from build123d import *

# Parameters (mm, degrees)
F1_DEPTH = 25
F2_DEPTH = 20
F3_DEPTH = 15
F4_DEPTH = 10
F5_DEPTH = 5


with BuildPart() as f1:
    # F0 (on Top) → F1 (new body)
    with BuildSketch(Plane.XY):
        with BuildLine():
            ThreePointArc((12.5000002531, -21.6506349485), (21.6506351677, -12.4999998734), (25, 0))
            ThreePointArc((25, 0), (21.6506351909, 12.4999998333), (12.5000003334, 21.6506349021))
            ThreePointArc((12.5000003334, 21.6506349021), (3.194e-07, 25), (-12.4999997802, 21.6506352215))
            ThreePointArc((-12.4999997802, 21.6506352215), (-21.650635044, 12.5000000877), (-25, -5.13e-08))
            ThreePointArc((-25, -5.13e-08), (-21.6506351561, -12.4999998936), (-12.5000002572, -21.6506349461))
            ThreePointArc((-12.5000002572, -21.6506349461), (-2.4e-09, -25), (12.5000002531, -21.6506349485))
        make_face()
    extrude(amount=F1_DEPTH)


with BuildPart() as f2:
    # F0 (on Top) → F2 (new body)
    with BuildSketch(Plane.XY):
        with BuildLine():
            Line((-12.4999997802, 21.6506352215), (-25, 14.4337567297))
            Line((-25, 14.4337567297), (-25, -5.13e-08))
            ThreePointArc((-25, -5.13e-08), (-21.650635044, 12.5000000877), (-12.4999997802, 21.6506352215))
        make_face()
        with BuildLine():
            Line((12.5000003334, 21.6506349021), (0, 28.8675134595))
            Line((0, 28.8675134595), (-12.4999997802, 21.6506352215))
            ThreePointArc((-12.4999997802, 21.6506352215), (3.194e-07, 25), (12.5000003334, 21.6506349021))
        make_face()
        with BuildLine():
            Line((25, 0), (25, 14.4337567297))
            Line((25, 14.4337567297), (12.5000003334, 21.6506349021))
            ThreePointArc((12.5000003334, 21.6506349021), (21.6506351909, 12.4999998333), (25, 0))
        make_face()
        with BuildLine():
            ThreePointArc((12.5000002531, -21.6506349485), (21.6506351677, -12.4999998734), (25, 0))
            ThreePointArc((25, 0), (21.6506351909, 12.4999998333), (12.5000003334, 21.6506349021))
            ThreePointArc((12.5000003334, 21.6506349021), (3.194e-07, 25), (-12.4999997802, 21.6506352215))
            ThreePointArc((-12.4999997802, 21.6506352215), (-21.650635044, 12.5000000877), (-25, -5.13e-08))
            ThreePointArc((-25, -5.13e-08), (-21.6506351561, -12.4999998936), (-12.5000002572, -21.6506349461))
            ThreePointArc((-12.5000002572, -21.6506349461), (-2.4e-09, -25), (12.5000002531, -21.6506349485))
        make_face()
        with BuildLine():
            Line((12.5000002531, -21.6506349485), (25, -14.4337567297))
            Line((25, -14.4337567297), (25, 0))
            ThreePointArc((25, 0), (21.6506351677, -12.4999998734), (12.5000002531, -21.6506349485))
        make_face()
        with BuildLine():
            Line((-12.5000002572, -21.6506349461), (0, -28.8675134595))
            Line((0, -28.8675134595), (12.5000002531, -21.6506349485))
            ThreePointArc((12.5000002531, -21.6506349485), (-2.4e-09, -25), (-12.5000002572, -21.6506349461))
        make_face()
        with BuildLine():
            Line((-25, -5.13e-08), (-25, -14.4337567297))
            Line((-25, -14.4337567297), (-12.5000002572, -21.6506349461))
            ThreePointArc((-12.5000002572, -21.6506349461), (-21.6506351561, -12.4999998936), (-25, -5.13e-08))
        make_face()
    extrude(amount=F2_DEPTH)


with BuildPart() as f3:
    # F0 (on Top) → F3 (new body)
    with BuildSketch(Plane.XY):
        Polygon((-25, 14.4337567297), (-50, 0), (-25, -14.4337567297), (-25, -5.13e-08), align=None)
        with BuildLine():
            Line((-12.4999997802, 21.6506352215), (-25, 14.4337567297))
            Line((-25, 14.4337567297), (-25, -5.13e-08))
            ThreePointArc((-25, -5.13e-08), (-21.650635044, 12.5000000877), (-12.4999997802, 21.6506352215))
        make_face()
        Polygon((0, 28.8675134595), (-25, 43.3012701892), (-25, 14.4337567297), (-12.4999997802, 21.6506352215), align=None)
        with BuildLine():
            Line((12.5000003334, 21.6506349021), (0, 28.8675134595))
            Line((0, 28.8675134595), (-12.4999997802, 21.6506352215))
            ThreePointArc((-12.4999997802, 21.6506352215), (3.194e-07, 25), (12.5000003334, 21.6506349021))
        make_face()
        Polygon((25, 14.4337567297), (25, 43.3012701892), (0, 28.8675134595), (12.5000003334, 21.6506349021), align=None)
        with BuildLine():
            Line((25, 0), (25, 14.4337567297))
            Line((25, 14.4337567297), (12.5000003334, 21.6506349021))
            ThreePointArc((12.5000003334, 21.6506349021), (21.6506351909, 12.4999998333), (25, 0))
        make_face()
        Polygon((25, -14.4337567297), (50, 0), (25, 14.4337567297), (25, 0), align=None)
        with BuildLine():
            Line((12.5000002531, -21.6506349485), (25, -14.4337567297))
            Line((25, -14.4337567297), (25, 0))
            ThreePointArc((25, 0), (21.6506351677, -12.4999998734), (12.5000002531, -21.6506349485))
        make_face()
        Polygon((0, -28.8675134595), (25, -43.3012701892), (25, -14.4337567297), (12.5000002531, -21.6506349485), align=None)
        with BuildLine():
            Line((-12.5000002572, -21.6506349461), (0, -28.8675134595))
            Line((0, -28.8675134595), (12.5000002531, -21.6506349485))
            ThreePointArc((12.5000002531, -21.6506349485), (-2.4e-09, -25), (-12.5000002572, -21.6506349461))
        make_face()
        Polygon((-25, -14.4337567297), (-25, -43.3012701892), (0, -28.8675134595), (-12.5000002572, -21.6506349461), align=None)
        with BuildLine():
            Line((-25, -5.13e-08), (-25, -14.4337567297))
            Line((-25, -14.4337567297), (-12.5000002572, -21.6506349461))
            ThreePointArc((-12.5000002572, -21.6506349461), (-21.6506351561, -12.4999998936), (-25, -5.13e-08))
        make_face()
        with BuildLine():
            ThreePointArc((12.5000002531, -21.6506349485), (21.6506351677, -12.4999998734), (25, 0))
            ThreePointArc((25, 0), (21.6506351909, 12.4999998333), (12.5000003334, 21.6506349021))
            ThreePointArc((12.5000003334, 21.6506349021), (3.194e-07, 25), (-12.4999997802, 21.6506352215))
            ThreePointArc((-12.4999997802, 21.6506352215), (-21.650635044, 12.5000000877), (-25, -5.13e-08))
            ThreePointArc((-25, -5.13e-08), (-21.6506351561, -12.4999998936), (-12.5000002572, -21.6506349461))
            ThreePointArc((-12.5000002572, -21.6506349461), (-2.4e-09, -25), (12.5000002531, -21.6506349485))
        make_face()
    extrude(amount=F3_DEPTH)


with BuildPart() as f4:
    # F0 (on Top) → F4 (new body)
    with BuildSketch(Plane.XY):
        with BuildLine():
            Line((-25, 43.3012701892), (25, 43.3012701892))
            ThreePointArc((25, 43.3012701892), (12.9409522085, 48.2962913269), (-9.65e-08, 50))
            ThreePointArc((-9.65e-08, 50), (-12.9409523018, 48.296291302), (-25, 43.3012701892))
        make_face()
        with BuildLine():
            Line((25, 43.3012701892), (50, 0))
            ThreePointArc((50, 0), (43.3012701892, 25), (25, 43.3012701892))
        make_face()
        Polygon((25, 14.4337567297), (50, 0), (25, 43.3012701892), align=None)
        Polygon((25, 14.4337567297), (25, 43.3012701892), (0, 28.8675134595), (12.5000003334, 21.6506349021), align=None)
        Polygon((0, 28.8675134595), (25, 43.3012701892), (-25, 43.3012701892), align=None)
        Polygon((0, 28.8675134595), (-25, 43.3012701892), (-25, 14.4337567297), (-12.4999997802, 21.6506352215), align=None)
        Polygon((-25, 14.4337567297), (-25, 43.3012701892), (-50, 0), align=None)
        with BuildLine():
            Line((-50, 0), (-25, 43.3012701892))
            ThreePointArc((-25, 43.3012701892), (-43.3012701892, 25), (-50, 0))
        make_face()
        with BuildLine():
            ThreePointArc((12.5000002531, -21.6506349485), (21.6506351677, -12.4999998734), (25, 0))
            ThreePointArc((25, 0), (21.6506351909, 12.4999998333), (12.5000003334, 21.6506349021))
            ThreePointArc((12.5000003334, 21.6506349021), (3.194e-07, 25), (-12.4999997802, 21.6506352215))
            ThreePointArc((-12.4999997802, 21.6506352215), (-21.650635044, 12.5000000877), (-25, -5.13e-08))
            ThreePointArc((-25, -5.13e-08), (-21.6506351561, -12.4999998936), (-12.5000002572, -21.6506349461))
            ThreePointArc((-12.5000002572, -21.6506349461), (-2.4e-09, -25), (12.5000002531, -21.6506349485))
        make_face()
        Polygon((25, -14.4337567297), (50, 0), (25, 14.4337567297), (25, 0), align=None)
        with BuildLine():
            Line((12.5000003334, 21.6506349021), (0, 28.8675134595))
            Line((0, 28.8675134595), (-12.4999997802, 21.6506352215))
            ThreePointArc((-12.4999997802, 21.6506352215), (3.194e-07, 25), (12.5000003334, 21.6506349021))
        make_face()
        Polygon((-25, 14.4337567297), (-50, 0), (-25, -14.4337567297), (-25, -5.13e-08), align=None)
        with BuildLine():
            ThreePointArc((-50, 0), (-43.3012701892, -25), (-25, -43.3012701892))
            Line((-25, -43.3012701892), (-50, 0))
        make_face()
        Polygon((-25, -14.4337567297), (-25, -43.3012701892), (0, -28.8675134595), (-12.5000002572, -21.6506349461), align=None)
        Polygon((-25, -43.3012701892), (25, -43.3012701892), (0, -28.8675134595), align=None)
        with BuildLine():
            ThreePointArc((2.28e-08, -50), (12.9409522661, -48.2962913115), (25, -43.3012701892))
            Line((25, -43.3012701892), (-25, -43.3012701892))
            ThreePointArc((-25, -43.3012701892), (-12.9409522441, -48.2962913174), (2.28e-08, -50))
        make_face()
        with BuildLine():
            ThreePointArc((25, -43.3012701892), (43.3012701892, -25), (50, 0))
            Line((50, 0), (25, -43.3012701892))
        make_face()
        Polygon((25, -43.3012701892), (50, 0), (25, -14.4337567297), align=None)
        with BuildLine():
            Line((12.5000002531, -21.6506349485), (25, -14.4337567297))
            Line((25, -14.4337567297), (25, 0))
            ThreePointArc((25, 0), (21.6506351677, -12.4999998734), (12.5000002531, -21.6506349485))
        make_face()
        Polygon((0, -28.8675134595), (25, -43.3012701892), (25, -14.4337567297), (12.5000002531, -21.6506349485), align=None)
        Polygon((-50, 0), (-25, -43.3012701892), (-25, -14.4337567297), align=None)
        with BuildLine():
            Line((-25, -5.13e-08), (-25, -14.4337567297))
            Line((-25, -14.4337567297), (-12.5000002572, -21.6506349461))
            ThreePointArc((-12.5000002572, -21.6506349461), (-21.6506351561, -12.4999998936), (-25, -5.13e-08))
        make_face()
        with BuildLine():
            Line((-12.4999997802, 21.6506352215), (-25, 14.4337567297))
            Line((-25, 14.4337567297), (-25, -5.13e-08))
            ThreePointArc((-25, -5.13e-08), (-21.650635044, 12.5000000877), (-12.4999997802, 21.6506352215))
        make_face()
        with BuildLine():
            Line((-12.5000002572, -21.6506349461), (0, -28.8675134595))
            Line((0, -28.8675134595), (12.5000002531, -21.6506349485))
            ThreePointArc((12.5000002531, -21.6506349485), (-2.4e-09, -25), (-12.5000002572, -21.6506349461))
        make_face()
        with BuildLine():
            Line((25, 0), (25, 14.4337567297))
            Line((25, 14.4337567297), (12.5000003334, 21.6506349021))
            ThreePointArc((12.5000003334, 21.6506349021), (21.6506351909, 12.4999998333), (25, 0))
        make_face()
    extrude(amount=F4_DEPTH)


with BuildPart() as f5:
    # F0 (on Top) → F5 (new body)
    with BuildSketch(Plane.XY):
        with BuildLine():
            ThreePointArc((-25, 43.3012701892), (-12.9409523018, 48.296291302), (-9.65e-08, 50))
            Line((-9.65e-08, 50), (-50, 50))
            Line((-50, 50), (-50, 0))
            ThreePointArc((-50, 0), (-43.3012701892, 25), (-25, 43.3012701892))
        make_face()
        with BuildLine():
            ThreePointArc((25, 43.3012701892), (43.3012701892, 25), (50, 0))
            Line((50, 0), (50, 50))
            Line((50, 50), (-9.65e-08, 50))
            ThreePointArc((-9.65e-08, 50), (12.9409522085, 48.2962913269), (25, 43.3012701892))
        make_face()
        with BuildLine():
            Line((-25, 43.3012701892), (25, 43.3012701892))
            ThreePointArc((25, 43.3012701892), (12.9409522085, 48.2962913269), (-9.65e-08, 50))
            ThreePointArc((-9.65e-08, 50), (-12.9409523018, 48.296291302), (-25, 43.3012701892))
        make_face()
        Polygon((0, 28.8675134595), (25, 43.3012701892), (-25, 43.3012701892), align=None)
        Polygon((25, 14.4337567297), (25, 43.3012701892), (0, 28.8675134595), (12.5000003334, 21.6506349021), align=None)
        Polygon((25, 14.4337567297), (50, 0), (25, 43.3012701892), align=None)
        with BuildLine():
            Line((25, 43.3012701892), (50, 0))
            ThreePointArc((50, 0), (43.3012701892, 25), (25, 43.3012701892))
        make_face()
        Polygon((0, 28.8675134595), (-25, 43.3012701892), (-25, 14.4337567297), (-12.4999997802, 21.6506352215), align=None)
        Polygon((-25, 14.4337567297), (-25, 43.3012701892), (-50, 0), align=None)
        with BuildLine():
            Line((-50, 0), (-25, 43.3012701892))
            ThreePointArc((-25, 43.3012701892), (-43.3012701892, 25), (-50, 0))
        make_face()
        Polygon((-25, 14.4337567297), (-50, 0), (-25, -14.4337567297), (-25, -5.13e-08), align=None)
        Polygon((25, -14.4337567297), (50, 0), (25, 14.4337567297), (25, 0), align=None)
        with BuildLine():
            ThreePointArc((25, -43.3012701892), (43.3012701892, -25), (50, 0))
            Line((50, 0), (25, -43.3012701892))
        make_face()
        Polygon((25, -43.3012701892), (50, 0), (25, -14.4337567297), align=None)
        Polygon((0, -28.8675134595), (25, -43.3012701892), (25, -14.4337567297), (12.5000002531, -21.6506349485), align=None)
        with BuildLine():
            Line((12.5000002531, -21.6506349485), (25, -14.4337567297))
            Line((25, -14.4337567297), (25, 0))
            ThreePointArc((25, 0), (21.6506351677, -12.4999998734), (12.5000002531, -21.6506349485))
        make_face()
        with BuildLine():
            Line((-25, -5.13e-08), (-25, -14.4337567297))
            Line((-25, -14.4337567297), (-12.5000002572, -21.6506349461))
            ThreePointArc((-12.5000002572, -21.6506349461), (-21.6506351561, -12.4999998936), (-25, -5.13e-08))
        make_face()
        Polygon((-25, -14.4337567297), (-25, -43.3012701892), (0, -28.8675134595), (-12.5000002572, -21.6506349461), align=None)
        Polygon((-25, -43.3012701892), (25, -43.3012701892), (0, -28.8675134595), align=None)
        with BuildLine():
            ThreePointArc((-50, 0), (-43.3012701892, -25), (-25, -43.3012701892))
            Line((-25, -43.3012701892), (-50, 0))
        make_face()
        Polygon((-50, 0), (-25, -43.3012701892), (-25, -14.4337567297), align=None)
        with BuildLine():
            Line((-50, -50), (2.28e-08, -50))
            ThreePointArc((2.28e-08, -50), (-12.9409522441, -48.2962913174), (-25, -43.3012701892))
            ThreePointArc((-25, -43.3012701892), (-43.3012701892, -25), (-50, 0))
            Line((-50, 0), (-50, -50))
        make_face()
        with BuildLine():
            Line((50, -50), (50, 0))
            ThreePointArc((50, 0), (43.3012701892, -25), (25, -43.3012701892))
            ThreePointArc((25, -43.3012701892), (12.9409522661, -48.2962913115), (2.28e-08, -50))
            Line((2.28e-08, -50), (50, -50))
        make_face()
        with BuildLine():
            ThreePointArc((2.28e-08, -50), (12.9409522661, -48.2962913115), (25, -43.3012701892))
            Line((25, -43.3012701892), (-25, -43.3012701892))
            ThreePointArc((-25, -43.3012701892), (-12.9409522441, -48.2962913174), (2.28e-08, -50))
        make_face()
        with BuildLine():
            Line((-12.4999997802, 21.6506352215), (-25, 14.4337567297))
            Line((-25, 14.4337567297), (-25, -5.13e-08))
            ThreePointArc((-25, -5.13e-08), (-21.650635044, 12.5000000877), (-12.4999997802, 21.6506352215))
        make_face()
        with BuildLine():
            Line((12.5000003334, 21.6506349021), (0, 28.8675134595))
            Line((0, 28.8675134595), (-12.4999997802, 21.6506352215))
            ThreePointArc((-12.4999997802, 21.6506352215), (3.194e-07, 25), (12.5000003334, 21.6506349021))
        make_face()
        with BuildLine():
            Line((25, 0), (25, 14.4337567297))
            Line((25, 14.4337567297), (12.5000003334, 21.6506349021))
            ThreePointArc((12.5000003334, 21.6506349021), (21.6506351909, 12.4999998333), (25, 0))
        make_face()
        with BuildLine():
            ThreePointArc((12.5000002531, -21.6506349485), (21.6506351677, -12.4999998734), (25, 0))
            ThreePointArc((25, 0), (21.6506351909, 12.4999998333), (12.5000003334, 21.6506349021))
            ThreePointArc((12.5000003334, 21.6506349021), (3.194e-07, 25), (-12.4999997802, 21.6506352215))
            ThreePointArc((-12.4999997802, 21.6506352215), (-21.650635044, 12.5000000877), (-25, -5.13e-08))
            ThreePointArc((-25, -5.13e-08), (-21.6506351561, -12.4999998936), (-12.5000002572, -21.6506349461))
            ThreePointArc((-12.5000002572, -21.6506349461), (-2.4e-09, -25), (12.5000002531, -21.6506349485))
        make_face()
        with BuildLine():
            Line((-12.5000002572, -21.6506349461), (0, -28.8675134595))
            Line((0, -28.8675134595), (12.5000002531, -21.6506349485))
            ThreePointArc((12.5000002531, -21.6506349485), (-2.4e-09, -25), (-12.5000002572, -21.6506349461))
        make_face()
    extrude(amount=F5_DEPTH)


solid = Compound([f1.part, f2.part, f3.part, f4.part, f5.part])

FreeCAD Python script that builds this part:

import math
import FreeCAD as App
import Part
import Sketcher
Q = App.Units.Quantity

doc = App.newDocument("Part")
body = doc.addObject("PartDesign::Body", "Body")

# Sketch on XY plane
sketch1 = doc.addObject("Sketcher::SketchObject", "Sketch")
body.addObject(sketch1)
sketch1.AttachmentSupport = (doc.XY_Plane, [""])
sketch1.MapMode = "FlatFace"
sketch1.addGeometry([
    Part.ArcOfCircle(Part.Circle(App.Vector(0, 0, 0), App.Vector(0, 0, 1), 25), math.radians(-60), math.radians(0)),  # 0
    Part.ArcOfCircle(Part.Circle(App.Vector(0, 0, 0), App.Vector(0, 0, 1), 25), math.radians(0), math.radians(60)),  # 1
    Part.ArcOfCircle(Part.Circle(App.Vector(0, 0, 0), App.Vector(0, 0, 1), 25), math.radians(60), math.radians(120)),  # 2
    Part.ArcOfCircle(Part.Circle(App.Vector(0, 0, 0), App.Vector(0, 0, 1), 25), math.radians(120), math.radians(180)),  # 3
    Part.ArcOfCircle(Part.Circle(App.Vector(0, 0, 0), App.Vector(0, 0, 1), 25), math.radians(-180), math.radians(-120)),  # 4
    Part.ArcOfCircle(Part.Circle(App.Vector(0, 0, 0), App.Vector(0, 0, 1), 25), math.radians(-120), math.radians(-60)),  # 5
], False)
sketch1.addConstraint([
    Sketcher.Constraint("Tangent", 0, 2, 1, 1),
    Sketcher.Constraint("Tangent", 1, 2, 2, 1),
    Sketcher.Constraint("Tangent", 2, 2, 3, 1),
    Sketcher.Constraint("Tangent", 3, 2, 4, 1),
    Sketcher.Constraint("Tangent", 4, 2, 5, 1),
    Sketcher.Constraint("Tangent", 5, 2, 0, 1),
    Sketcher.Constraint("Coincident", 0, 3, -1, 1),
    Sketcher.Constraint("Coincident", 2, 3, -1, 1),
    Sketcher.Constraint("Equal", 2, 3),
    Sketcher.Constraint("PointOnObject", 0, 2, -1),
    Sketcher.Constraint("PointOnObject", 3, 2, -1),
    Sketcher.Constraint("Horizontal", 1, 2, 2, 2),
    Sketcher.Constraint("Horizontal", 4, 2, 5, 2),
    Sketcher.Constraint("Vertical", 2, 2, 4, 2),
    Sketcher.Constraint("Radius", 0, 25.0),
    Sketcher.Constraint("DistanceX", -1, 1, 1, 2, 12.5),
])
pad1 = doc.addObject("PartDesign::Pad", "Pad")
body.addObject(pad1)
pad1.Profile = sketch1
pad1.Length = 25
body2 = doc.addObject("PartDesign::Body", "Body001")

# Sketch on XY plane
sketch2 = doc.addObject("Sketcher::SketchObject", "Sketch001")
body2.addObject(sketch2)
sketch2.AttachmentSupport = (doc.getObject("XY_Plane001"), [""])
sketch2.MapMode = "FlatFace"
sketch2.addGeometry([
    Part.LineSegment(App.Vector(0, 29, 0), App.Vector(-25, 14, 0)),  # 0
    Part.LineSegment(App.Vector(-25, 14, 0), App.Vector(-25, -14, 0)),  # 1
    Part.LineSegment(App.Vector(-25, -14, 0), App.Vector(0, -29, 0)),  # 2
    Part.LineSegment(App.Vector(0, -29, 0), App.Vector(13, -22, 0)),  # 3
    Part.LineSegment(App.Vector(13, -22, 0), App.Vector(25, -14, 0)),  # 4
    Part.LineSegment(App.Vector(25, -14, 0), App.Vector(25, 14, 0)),  # 5
    Part.LineSegment(App.Vector(25, 14, 0), App.Vector(13, 22, 0)),  # 6
    Part.LineSegment(App.Vector(13, 22, 0), App.Vector(0, 29, 0)),  # 7
], False)
sketch2.addConstraint([
    Sketcher.Constraint("Coincident", 0, 2, 1, 1),
    Sketcher.Constraint("Coincident", 1, 2, 2, 1),
    Sketcher.Constraint("Coincident", 2, 2, 3, 1),
    Sketcher.Constraint("Coincident", 3, 2, 4, 1),
    Sketcher.Constraint("Coincident", 4, 2, 5, 1),
    Sketcher.Constraint("Coincident", 5, 2, 6, 1),
    Sketcher.Constraint("Coincident", 6, 2, 7, 1),
    Sketcher.Constraint("Coincident", 7, 2, 0, 1),
    Sketcher.Constraint("Vertical", 1),
    Sketcher.Constraint("Vertical", 5),
    Sketcher.Constraint("Symmetric", 0, 2, 4, 2, -1, 1),
    Sketcher.Constraint("Symmetric", 2, 2, 7, 2, -1, 1),
    Sketcher.Constraint("Symmetric", 3, 2, 6, 2, -1),
    Sketcher.Constraint("PointOnObject", 2, 2, -2),
    Sketcher.Constraint("Parallel", 0, 3),
    Sketcher.Constraint("Parallel", 2, 6),
    Sketcher.Constraint("Parallel", 6, 7),
    Sketcher.Constraint("Equal", 3, 4),
    Sketcher.Constraint("Angle", 0, Q("-150 deg")),
    Sketcher.Constraint("DistanceX", 0, 2, -1, 1, 25.0),
    Sketcher.Constraint("DistanceY", 1, 2, 1, 1, 28.867513),
])
pad2 = doc.addObject("PartDesign::Pad", "Pad001")
body2.addObject(pad2)
pad2.Profile = sketch2
pad2.Length = 20
body3 = doc.addObject("PartDesign::Body", "Body002")

# Sketch on XY plane
sketch3 = doc.addObject("Sketcher::SketchObject", "Sketch002")
body3.addObject(sketch3)
sketch3.AttachmentSupport = (doc.getObject("XY_Plane002"), [""])
sketch3.MapMode = "FlatFace"
sketch3.addGeometry([
    Part.LineSegment(App.Vector(-50, 0, 0), App.Vector(-25, -14, 0)),  # 0
    Part.LineSegment(App.Vector(-25, -14, 0), App.Vector(-25, -43, 0)),  # 1
    Part.LineSegment(App.Vector(-25, -43, 0), App.Vector(0, -29, 0)),  # 2
    Part.LineSegment(App.Vector(0, -29, 0), App.Vector(25, -43, 0)),  # 3
    Part.LineSegment(App.Vector(25, -43, 0), App.Vector(25, -14, 0)),  # 4
    Part.LineSegment(App.Vector(25, -14, 0), App.Vector(50, 0, 0)),  # 5
    Part.LineSegment(App.Vector(50, 0, 0), App.Vector(25, 14, 0)),  # 6
    Part.LineSegment(App.Vector(25, 14, 0), App.Vector(25, 43, 0)),  # 7
    Part.LineSegment(App.Vector(25, 43, 0), App.Vector(0, 29, 0)),  # 8
    Part.LineSegment(App.Vector(0, 29, 0), App.Vector(-25, 43, 0)),  # 9
    Part.LineSegment(App.Vector(-25, 43, 0), App.Vector(-25, 14, 0)),  # 10
    Part.LineSegment(App.Vector(-25, 14, 0), App.Vector(-50, 0, 0)),  # 11
], False)
sketch3.addConstraint([
    Sketcher.Constraint("Coincident", 0, 2, 1, 1),
    Sketcher.Constraint("Coincident", 1, 2, 2, 1),
    Sketcher.Constraint("Coincident", 2, 2, 3, 1),
    Sketcher.Constraint("Coincident", 3, 2, 4, 1),
    Sketcher.Constraint("Coincident", 4, 2, 5, 1),
    Sketcher.Constraint("Coincident", 5, 2, 6, 1),
    Sketcher.Constraint("Coincident", 6, 2, 7, 1),
    Sketcher.Constraint("Coincident", 7, 2, 8, 1),
    Sketcher.Constraint("Coincident", 8, 2, 9, 1),
    Sketcher.Constraint("Coincident", 9, 2, 10, 1),
    Sketcher.Constraint("Coincident", 10, 2, 11, 1),
    Sketcher.Constraint("Coincident", 11, 2, 0, 1),
    Sketcher.Constraint("Vertical", 1),
    Sketcher.Constraint("Vertical", 4),
    Sketcher.Constraint("Vertical", 7),
    Sketcher.Constraint("Vertical", 10),
    Sketcher.Constraint("Symmetric", 0, 2, 6, 2, -1, 1),
    Sketcher.Constraint("Symmetric", 2, 2, 8, 2, -1, 1),
    Sketcher.Constraint("Symmetric", 3, 2, 9, 2, -1, 1),
    Sketcher.Constraint("Symmetric", 5, 2, 11, 2, -1, 1),
    Sketcher.Constraint("Symmetric", 1, 2, 3, 2, -2),
    Sketcher.Constraint("PointOnObject", 2, 2, -2),
    Sketcher.Constraint("PointOnObject", 5, 2, -1),
    Sketcher.Constraint("Parallel", 0, 3),
    Sketcher.Constraint("Parallel", 2, 5),
    Sketcher.Constraint("Parallel", 5, 8),
    Sketcher.Constraint("Parallel", 8, 11),
    Sketcher.Constraint("Equal", 0, 2),
    Sketcher.Constraint("Angle", 0, Q("-30 deg")),
    Sketcher.Constraint("DistanceX", 0, 2, -1, 1, 25.0),
    Sketcher.Constraint("DistanceY", 1, 2, 1, 1, 28.867513),
])
pad3 = doc.addObject("PartDesign::Pad", "Pad002")
body3.addObject(pad3)
pad3.Profile = sketch3
pad3.Length = 15
body4 = doc.addObject("PartDesign::Body", "Body003")

# Sketch on XY plane
sketch4 = doc.addObject("Sketcher::SketchObject", "Sketch003")
body4.addObject(sketch4)
sketch4.AttachmentSupport = (doc.getObject("XY_Plane003"), [""])
sketch4.MapMode = "FlatFace"
sketch4.addGeometry([
    Part.ArcOfCircle(Part.Circle(App.Vector(0, 0, 0), App.Vector(0, 0, 1), 50), math.radians(120), math.radians(180)),  # 0
    Part.ArcOfCircle(Part.Circle(App.Vector(0, 0, 0), App.Vector(0, 0, 1), 50), math.radians(180), math.radians(270)),  # 1
    Part.ArcOfCircle(Part.Circle(App.Vector(0, 0, 0), App.Vector(0, 0, 1), 50), math.radians(-90), math.radians(0)),  # 2
    Part.ArcOfCircle(Part.Circle(App.Vector(0, 0, 0), App.Vector(0, 0, 1), 50), math.radians(0), math.radians(60)),  # 3
    Part.ArcOfCircle(Part.Circle(App.Vector(0, 0, 0), App.Vector(0, 0, 1), 50), math.radians(60), math.radians(90)),  # 4
    Part.ArcOfCircle(Part.Circle(App.Vector(0, 0, 0), App.Vector(0, 0, 1), 50), math.radians(90), math.radians(120)),  # 5
], False)
sketch4.addConstraint([
    Sketcher.Constraint("Tangent", 0, 2, 1, 1),
    Sketcher.Constraint("Tangent", 1, 2, 2, 1),
    Sketcher.Constraint("Tangent", 2, 2, 3, 1),
    Sketcher.Constraint("Tangent", 3, 2, 4, 1),
    Sketcher.Constraint("Tangent", 4, 2, 5, 1),
    Sketcher.Constraint("Tangent", 5, 2, 0, 1),
    Sketcher.Constraint("Coincident", 0, 3, -1, 1),
    Sketcher.Constraint("Coincident", 2, 3, -1, 1),
    Sketcher.Constraint("Equal", 2, 3),
    Sketcher.Constraint("PointOnObject", 0, 2, -1),
    Sketcher.Constraint("PointOnObject", 1, 2, -2),
    Sketcher.Constraint("PointOnObject", 2, 2, -1),
    Sketcher.Constraint("PointOnObject", 4, 2, -2),
    Sketcher.Constraint("Horizontal", 3, 2, 5, 2),
    Sketcher.Constraint("Radius", 0, 50.0),
    Sketcher.Constraint("DistanceX", -1, 1, 3, 2, 25.0),
])
pad4 = doc.addObject("PartDesign::Pad", "Pad003")
body4.addObject(pad4)
pad4.Profile = sketch4
pad4.Length = 10
body5 = doc.addObject("PartDesign::Body", "Body004")

# Sketch on XY plane
sketch5 = doc.addObject("Sketcher::SketchObject", "Sketch004")
body5.addObject(sketch5)
sketch5.AttachmentSupport = (doc.getObject("XY_Plane004"), [""])
sketch5.MapMode = "FlatFace"
sketch5.addGeometry([
    Part.LineSegment(App.Vector(-50, -50, 0), App.Vector(50, -50, 0)),
    Part.LineSegment(App.Vector(50, -50, 0), App.Vector(50, 50, 0)),
    Part.LineSegment(App.Vector(50, 50, 0), App.Vector(-50, 50, 0)),
    Part.LineSegment(App.Vector(-50, 50, 0), App.Vector(-50, -50, 0)),
], False)
sketch5.addConstraint([
    Sketcher.Constraint("Coincident", 0, 2, 1, 1),
    Sketcher.Constraint("Coincident", 1, 2, 2, 1),
    Sketcher.Constraint("Coincident", 2, 2, 3, 1),
    Sketcher.Constraint("Coincident", 3, 2, 0, 1),
    Sketcher.Constraint("Horizontal", 0),
    Sketcher.Constraint("Vertical", 1),
    Sketcher.Constraint("Horizontal", 2),
    Sketcher.Constraint("Vertical", 3),
    Sketcher.Constraint("Symmetric", 0, 2, 2, 2, -1, 1),
    Sketcher.Constraint("Equal", 2, 1),
    Sketcher.Constraint("DistanceX", 0, 1, 0, 2, 100.0),
])
pad5 = doc.addObject("PartDesign::Pad", "Pad004")
body5.addObject(pad5)
pad5.Profile = sketch5
pad5.Length = 5

doc.recompute()
